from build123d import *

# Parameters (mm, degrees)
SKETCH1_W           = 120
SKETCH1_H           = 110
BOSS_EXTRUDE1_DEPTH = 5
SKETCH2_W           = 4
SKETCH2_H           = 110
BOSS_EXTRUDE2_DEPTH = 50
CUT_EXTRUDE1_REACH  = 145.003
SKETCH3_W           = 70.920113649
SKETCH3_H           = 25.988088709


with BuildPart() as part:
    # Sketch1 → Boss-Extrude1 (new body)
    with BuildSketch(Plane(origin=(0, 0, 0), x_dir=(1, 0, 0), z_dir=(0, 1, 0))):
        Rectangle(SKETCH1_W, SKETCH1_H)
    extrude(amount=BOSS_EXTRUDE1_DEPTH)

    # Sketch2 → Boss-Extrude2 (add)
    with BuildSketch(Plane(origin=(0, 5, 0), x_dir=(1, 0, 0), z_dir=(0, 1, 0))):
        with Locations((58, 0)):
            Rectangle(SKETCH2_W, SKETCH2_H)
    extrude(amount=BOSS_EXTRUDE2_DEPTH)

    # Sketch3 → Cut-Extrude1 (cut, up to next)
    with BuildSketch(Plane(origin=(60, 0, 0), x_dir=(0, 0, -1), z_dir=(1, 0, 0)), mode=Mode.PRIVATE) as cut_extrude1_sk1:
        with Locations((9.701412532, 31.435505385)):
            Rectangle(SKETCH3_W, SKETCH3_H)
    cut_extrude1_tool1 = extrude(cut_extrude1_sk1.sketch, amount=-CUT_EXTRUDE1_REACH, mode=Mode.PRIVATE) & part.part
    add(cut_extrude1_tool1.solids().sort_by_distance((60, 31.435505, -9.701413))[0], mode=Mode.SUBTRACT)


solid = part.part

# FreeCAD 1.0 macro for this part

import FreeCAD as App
import Part
import Sketcher
from FreeCAD import Vector
Q = App.Units.Quantity


def add_polygon(sketch, points):
    """Adds a closed chain of lines whose ends are joined by coincident constraints."""
    first, n = sketch.GeometryCount, len(points)
    for a, b in zip(points, points[1:] + points[:1]):
        sketch.addGeometry(Part.LineSegment(App.Vector(*a, 0), App.Vector(*b, 0)), False)
    for i in range(n):
        sketch.addConstraint(Sketcher.Constraint("Coincident", first + i, 2, first + (i + 1) % n, 1))

doc = App.newDocument("Part")
body = doc.addObject("PartDesign::Body", "Body")

# Sketch on XZ plane
sketch1 = body.newObject("Sketcher::SketchObject", "Sketch")
sketch1.AttachmentSupport = (doc.getObject("XZ_Plane"), [""])
sketch1.MapMode = "FlatFace"
add_polygon(sketch1, [(-60, -55), (-60, 55), (60, 55), (60, -55)])  # lines 0-3
sketch1.addConstraint(Sketcher.Constraint("Vertical", 0))
sketch1.addConstraint(Sketcher.Constraint("Horizontal", 1))
sketch1.addConstraint(Sketcher.Constraint("Vertical", 2))
sketch1.addConstraint(Sketcher.Constraint("Horizontal", 3))
sketch1.addConstraint(Sketcher.Constraint("Symmetric", 0, 2, 2, 2, -1, 1))
sketch1.addConstraint(Sketcher.Constraint("DistanceX", 1, 1, 1, 2, Q("120 mm")))
sketch1.addConstraint(Sketcher.Constraint("DistanceY", 0, 1, 0, 2, Q("110 mm")))
pad1 = body.newObject("PartDesign::Pad", "Pad")
pad1.Profile = sketch1
pad1.Length = 5
pad1.Reversed = True

# Sketch on XZ plane
sketch2 = body.newObject("Sketcher::SketchObject", "Sketch001")
sketch2.AttachmentSupport = (doc.getObject("XZ_Plane"), [""])
sketch2.MapMode = "FlatFace"
sketch2.AttachmentOffset = App.Placement(Vector(0, 0, -5), App.Rotation())
add_polygon(sketch2, [(56, -55), (56, 55), (60, 55), (60, -55)])  # lines 0-3
sketch2.addConstraint(Sketcher.Constraint("Vertical", 0))
sketch2.addConstraint(Sketcher.Constraint("Horizontal", 1))
sketch2.addConstraint(Sketcher.Constraint("Vertical", 2))
sketch2.addConstraint(Sketcher.Constraint("Horizontal", 3))
sketch2.addConstraint(Sketcher.Constraint("DistanceX", 1, 1, 1, 2, Q("4 mm")))
sketch2.addConstraint(Sketcher.Constraint("DistanceY", 0, 1, 0, 2, Q("110 mm")))
sketch2.addConstraint(Sketcher.Constraint("DistanceX", -1, 1, 0, 2, Q("56 mm")))
sketch2.addConstraint(Sketcher.Constraint("DistanceY", -1, 1, 0, 2, Q("55 mm")))
pad2 = body.newObject("PartDesign::Pad", "Pad001")
pad2.Profile = sketch2
pad2.Length = 50
pad2.Reversed = True

# Sketch on YZ plane
sketch3 = body.newObject("Sketcher::SketchObject", "Sketch002")
sketch3.AttachmentSupport = (doc.getObject("YZ_Plane"), [""])
sketch3.MapMode = "FlatFace"
sketch3.AttachmentOffset = App.Placement(Vector(0, 0, 60), App.Rotation())
add_polygon(sketch3, [(44, 26), (18, 26), (18, -45), (44, -45)])  # lines 0-3
sketch3.addConstraint(Sketcher.Constraint("Horizontal", 0))
sketch3.addConstraint(Sketcher.Constraint("Vertical", 1))
sketch3.addConstraint(Sketcher.Constraint("Horizontal", 2))
sketch3.addConstraint(Sketcher.Constraint("Vertical", 3))
sketch3.addConstraint(Sketcher.Constraint("DistanceX", 0, 2, 0, 1, Q("25.988089 mm")))
sketch3.addConstraint(Sketcher.Constraint("DistanceY", 1, 2, 1, 1, Q("70.920114 mm")))
sketch3.addConstraint(Sketcher.Constraint("DistanceX", -1, 1, 0, 2, Q("18.441461 mm")))
sketch3.addConstraint(Sketcher.Constraint("DistanceY", 1, 2, -1, 1, Q("45.161469 mm")))
pocket1 = body.newObject("PartDesign::Pocket", "Pocket")
pocket1.Profile = sketch3
pocket1.Type = "UpToFirst"

doc.recompute()
